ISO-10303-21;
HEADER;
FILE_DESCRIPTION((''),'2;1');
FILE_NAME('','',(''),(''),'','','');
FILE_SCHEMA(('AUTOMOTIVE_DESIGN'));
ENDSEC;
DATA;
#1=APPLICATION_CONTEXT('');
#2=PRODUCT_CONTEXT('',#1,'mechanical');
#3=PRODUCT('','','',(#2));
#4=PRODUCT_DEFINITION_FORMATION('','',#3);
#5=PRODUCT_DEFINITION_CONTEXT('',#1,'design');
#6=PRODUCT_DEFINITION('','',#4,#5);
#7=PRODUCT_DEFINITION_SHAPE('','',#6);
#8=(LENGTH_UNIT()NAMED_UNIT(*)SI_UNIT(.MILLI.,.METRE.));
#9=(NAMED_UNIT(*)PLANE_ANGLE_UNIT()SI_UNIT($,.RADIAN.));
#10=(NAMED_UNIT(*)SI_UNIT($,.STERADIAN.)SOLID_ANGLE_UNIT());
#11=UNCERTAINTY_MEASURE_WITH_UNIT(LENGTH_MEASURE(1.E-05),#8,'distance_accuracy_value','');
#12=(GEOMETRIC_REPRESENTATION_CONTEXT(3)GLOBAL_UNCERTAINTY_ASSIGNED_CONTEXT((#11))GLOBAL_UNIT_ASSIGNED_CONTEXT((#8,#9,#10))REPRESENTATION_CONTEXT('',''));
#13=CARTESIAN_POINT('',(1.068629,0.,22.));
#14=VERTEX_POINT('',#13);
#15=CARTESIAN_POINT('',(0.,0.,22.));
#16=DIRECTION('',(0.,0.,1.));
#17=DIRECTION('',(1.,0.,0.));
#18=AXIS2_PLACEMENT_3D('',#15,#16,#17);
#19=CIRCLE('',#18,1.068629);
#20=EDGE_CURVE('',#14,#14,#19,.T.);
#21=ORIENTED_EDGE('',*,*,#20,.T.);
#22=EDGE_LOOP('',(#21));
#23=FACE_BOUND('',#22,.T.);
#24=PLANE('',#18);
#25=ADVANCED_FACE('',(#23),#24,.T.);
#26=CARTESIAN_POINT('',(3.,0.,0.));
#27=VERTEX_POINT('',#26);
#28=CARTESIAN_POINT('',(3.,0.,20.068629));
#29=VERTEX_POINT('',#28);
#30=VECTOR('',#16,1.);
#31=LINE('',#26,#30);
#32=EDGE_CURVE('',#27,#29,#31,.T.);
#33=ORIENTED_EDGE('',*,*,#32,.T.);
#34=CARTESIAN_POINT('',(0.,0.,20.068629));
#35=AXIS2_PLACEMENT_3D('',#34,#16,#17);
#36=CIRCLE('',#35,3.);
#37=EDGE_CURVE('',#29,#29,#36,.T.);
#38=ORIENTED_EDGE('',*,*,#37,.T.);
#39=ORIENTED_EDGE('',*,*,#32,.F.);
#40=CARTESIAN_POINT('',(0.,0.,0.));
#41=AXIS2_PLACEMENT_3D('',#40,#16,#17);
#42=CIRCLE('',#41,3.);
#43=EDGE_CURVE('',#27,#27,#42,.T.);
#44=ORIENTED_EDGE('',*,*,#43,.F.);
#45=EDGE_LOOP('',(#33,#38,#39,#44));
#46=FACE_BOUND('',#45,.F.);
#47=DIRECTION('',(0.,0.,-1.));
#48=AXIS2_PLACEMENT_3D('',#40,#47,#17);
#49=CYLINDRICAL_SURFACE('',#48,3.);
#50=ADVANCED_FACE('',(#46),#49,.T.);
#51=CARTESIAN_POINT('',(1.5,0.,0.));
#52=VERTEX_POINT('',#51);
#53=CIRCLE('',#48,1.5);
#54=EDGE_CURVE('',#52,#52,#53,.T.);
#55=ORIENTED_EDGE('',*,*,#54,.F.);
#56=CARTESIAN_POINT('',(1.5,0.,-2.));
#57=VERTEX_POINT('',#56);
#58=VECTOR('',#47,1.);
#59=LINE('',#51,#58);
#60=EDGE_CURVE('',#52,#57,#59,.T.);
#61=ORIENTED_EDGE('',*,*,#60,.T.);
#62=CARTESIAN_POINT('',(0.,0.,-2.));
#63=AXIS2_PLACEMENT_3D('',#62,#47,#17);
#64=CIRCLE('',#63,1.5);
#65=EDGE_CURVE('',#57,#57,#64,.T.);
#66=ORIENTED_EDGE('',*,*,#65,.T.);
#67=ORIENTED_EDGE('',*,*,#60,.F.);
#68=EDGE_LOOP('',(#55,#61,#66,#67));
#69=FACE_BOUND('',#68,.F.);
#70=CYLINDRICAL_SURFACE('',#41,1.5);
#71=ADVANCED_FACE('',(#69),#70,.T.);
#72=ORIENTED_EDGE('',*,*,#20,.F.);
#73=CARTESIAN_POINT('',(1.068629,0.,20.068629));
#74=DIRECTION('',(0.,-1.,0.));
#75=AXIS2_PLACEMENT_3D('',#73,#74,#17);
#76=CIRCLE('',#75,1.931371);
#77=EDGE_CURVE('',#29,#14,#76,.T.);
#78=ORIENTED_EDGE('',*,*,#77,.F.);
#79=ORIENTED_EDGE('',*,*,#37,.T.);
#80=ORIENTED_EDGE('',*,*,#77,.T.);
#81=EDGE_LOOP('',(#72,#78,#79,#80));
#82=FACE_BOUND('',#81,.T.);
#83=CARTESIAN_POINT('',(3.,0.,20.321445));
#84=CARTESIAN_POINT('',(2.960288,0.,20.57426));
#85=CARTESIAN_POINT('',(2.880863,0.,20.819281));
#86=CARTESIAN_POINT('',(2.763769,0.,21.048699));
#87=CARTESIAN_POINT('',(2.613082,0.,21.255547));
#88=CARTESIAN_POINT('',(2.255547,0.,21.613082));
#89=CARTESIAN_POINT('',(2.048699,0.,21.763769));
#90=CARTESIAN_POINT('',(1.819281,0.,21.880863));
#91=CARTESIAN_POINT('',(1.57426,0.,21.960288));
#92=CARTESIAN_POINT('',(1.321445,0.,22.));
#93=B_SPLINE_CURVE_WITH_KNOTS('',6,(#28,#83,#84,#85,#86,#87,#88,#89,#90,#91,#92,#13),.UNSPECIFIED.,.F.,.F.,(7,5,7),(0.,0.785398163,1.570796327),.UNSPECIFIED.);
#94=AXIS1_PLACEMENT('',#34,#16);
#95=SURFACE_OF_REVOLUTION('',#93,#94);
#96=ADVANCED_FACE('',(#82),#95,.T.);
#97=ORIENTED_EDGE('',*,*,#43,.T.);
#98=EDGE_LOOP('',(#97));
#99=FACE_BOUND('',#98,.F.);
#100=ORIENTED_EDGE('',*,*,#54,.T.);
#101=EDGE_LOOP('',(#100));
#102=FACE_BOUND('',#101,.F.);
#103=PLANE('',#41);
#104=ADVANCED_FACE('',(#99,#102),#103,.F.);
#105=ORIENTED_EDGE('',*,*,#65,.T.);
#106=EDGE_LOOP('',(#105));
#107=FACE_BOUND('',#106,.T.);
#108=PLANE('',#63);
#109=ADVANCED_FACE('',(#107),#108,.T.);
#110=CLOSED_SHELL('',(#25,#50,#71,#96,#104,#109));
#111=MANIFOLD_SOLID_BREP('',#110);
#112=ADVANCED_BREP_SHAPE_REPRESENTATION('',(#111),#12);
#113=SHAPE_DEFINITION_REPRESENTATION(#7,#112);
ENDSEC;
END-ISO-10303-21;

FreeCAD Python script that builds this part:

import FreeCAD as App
import Part
import Sketcher
from FreeCAD import Vector


def edges_at(feature, points):
    """Names of the edges that pass closest to the given points."""
    edges = feature.Shape.Edges
    near = lambda p: min(range(len(edges)), key=lambda i: edges[i].distToShape(Part.Vertex(*p))[0])
    return sorted({f"Edge{near(p) + 1}" for p in points})

doc = App.newDocument("Part")
body = doc.addObject("PartDesign::Body", "Body")

# Sketch on XY plane
sketch1 = body.newObject("Sketcher::SketchObject", "Sketch")
sketch1.AttachmentSupport = (doc.getObject("XY_Plane"), [""])
sketch1.MapMode = "FlatFace"
sketch1.addGeometry(Part.Circle(Vector(0, 0, 0), Vector(0, 0, 1), 3), False)
sketch1.addConstraint([
    Sketcher.Constraint("Coincident", 0, 3, -1, 1),
    Sketcher.Constraint("Diameter", 0, 6.0),
])
pad1 = body.newObject("PartDesign::Pad", "Pad")
pad1.Profile = sketch1
pad1.Length = 22
doc.recompute()

fillet = body.newObject("PartDesign::Fillet", "Fillet")
fillet.Base = (pad1, edges_at(pad1, [(-3, 0, 22)]))
fillet.Radius = 1.931371

# Sketch on XY plane
sketch2 = body.newObject("Sketcher::SketchObject", "Sketch001")
sketch2.AttachmentSupport = (doc.getObject("XY_Plane"), [""])
sketch2.MapMode = "FlatFace"
sketch2.addGeometry(Part.Circle(Vector(0, 0, 0), Vector(0, 0, 1), 1.5), False)
sketch2.addConstraint([
    Sketcher.Constraint("Coincident", 0, 3, -1, 1),
    Sketcher.Constraint("Diameter", 0, 3.0),
])
pad2 = body.newObject("PartDesign::Pad", "Pad001")
pad2.Profile = sketch2
pad2.Length = 2
pad2.Reversed = True

doc.recompute()
